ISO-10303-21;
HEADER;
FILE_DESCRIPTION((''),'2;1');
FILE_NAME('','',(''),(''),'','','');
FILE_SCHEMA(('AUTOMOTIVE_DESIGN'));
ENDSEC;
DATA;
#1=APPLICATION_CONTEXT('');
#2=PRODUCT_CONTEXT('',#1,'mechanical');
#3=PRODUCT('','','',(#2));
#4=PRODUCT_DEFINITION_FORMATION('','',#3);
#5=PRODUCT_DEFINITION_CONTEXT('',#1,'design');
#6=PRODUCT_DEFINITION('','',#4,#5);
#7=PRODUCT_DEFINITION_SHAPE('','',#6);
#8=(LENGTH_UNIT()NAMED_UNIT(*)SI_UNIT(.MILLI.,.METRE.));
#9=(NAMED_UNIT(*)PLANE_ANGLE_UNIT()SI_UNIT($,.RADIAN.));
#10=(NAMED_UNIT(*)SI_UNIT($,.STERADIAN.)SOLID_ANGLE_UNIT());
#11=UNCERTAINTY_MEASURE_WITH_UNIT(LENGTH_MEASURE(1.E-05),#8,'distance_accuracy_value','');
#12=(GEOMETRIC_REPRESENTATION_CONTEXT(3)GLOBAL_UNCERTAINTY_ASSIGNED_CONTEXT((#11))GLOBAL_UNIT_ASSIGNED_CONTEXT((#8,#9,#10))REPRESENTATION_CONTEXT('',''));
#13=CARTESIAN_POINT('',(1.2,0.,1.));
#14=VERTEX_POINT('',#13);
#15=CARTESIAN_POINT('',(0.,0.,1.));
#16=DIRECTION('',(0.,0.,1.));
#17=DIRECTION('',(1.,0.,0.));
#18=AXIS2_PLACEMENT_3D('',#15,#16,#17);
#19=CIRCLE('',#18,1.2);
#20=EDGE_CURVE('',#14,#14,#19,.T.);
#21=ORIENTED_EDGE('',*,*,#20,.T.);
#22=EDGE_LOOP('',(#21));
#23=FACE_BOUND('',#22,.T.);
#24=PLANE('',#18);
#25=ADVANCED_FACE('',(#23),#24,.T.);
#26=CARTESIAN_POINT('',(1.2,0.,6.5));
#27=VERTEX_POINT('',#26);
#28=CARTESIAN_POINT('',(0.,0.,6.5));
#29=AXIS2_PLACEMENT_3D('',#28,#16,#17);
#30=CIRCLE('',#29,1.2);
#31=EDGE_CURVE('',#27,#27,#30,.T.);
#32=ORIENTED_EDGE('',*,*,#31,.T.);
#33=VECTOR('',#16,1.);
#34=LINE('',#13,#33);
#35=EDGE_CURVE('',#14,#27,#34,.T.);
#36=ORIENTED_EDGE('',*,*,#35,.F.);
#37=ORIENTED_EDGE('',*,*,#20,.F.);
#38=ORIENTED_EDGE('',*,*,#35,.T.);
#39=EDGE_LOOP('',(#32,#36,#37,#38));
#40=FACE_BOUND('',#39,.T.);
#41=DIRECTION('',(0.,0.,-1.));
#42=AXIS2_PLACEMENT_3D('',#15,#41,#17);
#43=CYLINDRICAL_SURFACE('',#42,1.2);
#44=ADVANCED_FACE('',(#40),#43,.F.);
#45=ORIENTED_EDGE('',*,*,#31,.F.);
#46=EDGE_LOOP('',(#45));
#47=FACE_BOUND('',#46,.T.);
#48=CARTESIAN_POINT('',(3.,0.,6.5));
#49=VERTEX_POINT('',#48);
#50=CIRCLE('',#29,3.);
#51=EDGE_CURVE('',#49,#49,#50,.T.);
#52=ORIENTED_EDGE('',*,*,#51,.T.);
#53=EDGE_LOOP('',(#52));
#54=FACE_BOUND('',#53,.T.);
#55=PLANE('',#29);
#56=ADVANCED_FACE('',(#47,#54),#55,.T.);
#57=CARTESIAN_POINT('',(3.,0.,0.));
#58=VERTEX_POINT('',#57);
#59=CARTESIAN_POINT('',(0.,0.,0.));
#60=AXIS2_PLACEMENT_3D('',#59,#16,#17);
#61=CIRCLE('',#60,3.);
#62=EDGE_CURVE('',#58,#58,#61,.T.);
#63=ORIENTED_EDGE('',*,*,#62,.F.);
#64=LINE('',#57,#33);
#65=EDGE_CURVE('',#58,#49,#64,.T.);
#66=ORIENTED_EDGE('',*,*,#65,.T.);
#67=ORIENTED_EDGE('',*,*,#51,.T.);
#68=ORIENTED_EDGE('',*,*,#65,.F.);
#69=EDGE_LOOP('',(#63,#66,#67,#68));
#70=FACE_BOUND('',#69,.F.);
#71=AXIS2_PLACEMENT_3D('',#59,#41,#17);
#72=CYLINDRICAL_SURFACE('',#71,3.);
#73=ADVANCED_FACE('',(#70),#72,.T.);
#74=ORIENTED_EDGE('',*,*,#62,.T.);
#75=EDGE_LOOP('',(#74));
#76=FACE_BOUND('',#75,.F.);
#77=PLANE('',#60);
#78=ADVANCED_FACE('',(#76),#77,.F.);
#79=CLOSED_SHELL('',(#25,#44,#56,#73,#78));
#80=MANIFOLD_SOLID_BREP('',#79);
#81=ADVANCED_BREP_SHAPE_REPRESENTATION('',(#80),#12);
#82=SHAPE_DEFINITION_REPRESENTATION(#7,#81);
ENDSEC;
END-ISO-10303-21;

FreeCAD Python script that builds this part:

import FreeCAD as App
import Part
import Sketcher

V = App.Vector
Q = App.Units.Quantity

doc = App.newDocument("Part")
body = doc.addObject("PartDesign::Body", "Body")

# Sketch on XY plane
sketch1 = doc.addObject("Sketcher::SketchObject", "Sketch")
body.addObject(sketch1)
sketch1.AttachmentSupport = (doc.XY_Plane, [""])
sketch1.MapMode = "FlatFace"
sketch1.AttachmentOffset = App.Placement(V(0, 0, 1), App.Rotation())
sketch1.addGeometry(Part.Circle(V(0, 0, 0), V(0, 0, 1), 1.2), False)
sketch1.addConstraint(Sketcher.Constraint("Coincident", 0, 3, -1, 1))
sketch1.addConstraint(Sketcher.Constraint("Diameter", 0, Q("2.4 mm")))
pad1 = doc.addObject("PartDesign::Pad", "Pad")
body.addObject(pad1)
pad1.Profile = sketch1
pad1.Length = 5.5
body2 = doc.addObject("PartDesign::Body", "Body001")

# Sketch on XY plane
sketch2 = doc.addObject("Sketcher::SketchObject", "Sketch001")
body2.addObject(sketch2)
sketch2.AttachmentSupport = (doc.getObject("XY_Plane001"), [""])
sketch2.MapMode = "FlatFace"
sketch2.addGeometry(Part.Circle(V(0, 0, 0), V(0, 0, 1), 3), False)
sketch2.addConstraint(Sketcher.Constraint("Coincident", 0, 3, -1, 1))
sketch2.addConstraint(Sketcher.Constraint("Diameter", 0, Q("6 mm")))
pad2 = doc.addObject("PartDesign::Pad", "Pad001")
body2.addObject(pad2)
pad2.Profile = sketch2
pad2.Length = 6.5
doc.recompute()

boolean = doc.addObject("PartDesign::Boolean", "Boolean")
body2.addObject(boolean)
boolean.Type = "Cut"
boolean.addObjects([body])

doc.recompute()
